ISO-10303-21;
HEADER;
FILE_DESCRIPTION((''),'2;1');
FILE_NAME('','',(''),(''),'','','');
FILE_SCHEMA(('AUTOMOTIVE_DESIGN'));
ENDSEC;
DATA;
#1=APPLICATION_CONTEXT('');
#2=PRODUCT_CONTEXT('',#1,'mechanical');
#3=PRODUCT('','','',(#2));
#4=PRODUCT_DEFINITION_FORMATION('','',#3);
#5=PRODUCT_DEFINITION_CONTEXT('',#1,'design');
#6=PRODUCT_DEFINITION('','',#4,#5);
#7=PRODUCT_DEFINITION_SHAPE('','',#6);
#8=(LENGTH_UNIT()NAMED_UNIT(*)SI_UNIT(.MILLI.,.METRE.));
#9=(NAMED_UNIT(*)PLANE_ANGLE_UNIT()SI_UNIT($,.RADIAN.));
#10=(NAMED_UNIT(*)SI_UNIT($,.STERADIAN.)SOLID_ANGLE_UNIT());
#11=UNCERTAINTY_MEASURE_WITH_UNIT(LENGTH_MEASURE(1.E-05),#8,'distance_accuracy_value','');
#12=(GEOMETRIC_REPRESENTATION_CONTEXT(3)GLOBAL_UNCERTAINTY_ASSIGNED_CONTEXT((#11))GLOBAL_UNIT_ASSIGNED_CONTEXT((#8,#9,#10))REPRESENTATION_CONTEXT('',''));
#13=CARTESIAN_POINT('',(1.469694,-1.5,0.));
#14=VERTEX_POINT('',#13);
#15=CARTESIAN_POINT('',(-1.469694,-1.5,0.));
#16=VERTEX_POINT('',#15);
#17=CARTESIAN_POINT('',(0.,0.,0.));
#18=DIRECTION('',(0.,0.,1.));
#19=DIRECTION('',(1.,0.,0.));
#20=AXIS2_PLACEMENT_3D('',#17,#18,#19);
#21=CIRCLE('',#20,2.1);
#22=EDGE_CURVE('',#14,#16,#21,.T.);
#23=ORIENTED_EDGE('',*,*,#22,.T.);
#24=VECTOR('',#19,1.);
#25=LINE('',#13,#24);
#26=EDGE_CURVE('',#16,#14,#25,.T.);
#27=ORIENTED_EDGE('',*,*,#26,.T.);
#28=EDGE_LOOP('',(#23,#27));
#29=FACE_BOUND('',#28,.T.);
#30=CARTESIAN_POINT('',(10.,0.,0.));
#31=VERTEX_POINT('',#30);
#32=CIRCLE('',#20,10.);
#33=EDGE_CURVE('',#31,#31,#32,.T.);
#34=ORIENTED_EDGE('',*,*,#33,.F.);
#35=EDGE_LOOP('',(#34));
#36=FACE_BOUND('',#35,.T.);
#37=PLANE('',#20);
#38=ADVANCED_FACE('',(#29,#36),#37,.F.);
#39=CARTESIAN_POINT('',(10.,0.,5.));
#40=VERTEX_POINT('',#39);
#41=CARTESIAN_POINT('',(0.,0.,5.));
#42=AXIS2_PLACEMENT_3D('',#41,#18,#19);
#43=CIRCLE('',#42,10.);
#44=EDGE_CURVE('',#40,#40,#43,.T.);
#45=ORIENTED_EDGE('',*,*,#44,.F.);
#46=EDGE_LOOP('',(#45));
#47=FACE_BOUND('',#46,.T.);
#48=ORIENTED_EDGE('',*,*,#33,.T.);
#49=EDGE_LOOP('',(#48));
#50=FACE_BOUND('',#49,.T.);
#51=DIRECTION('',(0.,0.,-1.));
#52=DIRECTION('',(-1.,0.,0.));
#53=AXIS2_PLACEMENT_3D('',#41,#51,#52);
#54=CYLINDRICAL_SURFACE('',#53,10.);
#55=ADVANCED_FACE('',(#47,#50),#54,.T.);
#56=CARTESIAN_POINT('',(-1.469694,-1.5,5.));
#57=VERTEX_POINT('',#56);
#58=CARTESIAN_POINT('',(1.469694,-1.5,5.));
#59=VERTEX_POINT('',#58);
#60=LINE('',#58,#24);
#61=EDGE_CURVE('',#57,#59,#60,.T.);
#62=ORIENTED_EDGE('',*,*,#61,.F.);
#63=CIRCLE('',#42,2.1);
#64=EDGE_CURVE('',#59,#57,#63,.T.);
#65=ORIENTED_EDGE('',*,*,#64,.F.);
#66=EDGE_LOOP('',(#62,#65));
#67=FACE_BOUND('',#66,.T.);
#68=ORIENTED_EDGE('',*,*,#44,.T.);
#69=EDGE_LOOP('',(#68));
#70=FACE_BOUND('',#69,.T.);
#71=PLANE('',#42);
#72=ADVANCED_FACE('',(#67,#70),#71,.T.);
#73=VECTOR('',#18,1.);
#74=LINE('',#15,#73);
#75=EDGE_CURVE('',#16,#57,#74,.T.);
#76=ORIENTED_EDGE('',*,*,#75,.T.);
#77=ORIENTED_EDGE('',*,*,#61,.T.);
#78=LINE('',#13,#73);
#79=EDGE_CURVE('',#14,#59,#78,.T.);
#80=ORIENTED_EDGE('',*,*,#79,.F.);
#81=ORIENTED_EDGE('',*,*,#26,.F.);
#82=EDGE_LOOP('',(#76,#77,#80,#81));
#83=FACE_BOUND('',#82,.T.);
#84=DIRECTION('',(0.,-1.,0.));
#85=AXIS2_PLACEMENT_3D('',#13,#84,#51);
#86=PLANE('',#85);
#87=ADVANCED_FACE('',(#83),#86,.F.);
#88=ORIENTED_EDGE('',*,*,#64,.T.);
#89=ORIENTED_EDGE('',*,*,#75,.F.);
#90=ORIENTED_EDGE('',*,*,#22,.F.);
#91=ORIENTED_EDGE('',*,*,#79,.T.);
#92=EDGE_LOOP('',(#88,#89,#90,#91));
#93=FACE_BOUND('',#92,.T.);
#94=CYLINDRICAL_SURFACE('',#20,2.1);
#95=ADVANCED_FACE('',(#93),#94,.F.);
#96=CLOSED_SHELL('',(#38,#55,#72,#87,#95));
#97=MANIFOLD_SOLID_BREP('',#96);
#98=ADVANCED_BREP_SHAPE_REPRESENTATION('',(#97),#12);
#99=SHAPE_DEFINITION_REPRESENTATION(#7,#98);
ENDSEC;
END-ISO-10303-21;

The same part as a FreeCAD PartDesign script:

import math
import FreeCAD as App
import Part
import Sketcher

doc = App.newDocument("Part")
params = doc.addObject("Spreadsheet::Sheet", "Params")
for row, (alias, value) in enumerate([
    ("sketch1_diameter", "20 mm"),
    ("pad1_length", "5 mm"),
    ("sketch2_radius", "2.1 mm"),
    ("pocket1_length", "5 mm"),
], start=1):
    params.set(f"A{row}", alias)
    params.set(f"B{row}", "=" + value)
    params.setAlias(f"B{row}", alias)

body = doc.addObject("PartDesign::Body", "Body")

# Sketch on XY plane
sketch1 = doc.addObject("Sketcher::SketchObject", "Sketch")
body.addObject(sketch1)
sketch1.AttachmentSupport = (doc.XY_Plane, [""])
sketch1.MapMode = "FlatFace"
sketch1.addGeometry(Part.Circle(App.Vector(0, 0, 0), App.Vector(0, 0, 1), 10), False)
sketch1.addConstraint([
    Sketcher.Constraint("Coincident", 0, 3, -1, 1),
    Sketcher.Constraint("Diameter", 0, 20.0),
])
sketch1.setExpression("Constraints[1]", "Params.sketch1_diameter")
pad1 = doc.addObject("PartDesign::Pad", "Pad")
body.addObject(pad1)
pad1.Profile = sketch1
pad1.setExpression("Length", "Params.pad1_length")

# Sketch on XY plane
sketch2 = doc.addObject("Sketcher::SketchObject", "Sketch001")
body.addObject(sketch2)
sketch2.AttachmentSupport = (doc.XY_Plane, [""])
sketch2.MapMode = "FlatFace"
sketch2.AttachmentOffset = App.Placement(App.Vector(0, 0, 5), App.Rotation())
sketch2.addGeometry([
    Part.LineSegment(App.Vector(-1.5, -1.5, 0), App.Vector(1.5, -1.5, 0)),
    Part.ArcOfCircle(Part.Circle(App.Vector(0, 0, 0), App.Vector(0, 0, 1), 2.1), math.radians(-46), math.radians(226)),
], False)
sketch2.addConstraint([
    Sketcher.Constraint("Coincident", 0, 1, 1, 2),
    Sketcher.Constraint("Coincident", 1, 1, 0, 2),
    Sketcher.Constraint("Horizontal", 0),
    Sketcher.Constraint("Coincident", 1, 3, -1, 1),
    Sketcher.Constraint("Radius", 1, 2.1),
    Sketcher.Constraint("DistanceY", 0, 1, -1, 1, 1.5),
])
sketch2.setExpression("Constraints[4]", "Params.sketch2_radius")
pocket1 = doc.addObject("PartDesign::Pocket", "Pocket")
body.addObject(pocket1)
pocket1.Profile = sketch2
pocket1.setExpression("Length", "Params.pocket1_length")

doc.recompute()
